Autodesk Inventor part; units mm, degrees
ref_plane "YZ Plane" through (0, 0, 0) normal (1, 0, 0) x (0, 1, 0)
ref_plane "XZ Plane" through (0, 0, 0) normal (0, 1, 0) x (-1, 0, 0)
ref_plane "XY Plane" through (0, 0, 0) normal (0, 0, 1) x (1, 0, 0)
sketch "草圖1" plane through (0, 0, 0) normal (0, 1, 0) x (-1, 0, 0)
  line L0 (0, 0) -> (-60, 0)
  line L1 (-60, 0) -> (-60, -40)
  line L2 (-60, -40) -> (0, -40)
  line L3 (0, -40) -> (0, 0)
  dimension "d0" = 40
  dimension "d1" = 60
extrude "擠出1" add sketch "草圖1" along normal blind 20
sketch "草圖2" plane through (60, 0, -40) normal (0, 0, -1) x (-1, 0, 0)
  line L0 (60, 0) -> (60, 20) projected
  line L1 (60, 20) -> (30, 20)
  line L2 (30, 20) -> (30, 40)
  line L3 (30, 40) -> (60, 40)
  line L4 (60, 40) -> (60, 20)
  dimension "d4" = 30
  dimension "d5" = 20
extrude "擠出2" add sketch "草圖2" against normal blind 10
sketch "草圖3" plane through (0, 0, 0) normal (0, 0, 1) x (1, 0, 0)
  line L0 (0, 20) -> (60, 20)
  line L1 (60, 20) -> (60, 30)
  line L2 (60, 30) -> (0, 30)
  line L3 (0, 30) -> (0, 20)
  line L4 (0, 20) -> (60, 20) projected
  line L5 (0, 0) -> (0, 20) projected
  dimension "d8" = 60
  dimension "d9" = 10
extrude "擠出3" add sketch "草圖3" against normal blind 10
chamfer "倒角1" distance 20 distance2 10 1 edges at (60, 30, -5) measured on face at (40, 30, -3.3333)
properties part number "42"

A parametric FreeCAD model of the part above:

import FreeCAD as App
import Part
import Sketcher
from FreeCAD import Vector


def edges_at(feature, points):
    """Names of the edges that pass closest to the given points."""
    edges = feature.Shape.Edges
    near = lambda p: min(range(len(edges)), key=lambda i: edges[i].distToShape(Part.Vertex(*p))[0])
    return sorted({f"Edge{near(p) + 1}" for p in points})

doc = App.newDocument("Part")
body = doc.addObject("PartDesign::Body", "Body")

# Sketch on XZ plane
sketch1 = body.newObject("Sketcher::SketchObject", "Sketch")
sketch1.AttachmentSupport = (doc.getObject("XZ_Plane"), [""])
sketch1.MapMode = "FlatFace"
sketch1.addGeometry(Part.LineSegment(Vector(0, -40, 0), Vector(0, 0, 0)), False)
sketch1.addGeometry(Part.LineSegment(Vector(0, 0, 0), Vector(60, 0, 0)), False)
sketch1.addGeometry(Part.LineSegment(Vector(60, 0, 0), Vector(60, -40, 0)), False)
sketch1.addGeometry(Part.LineSegment(Vector(60, -40, 0), Vector(0, -40, 0)), False)
sketch1.addConstraint(Sketcher.Constraint("Coincident", 0, 2, 1, 1))
sketch1.addConstraint(Sketcher.Constraint("Coincident", 1, 2, 2, 1))
sketch1.addConstraint(Sketcher.Constraint("Coincident", 2, 2, 3, 1))
sketch1.addConstraint(Sketcher.Constraint("Coincident", 3, 2, 0, 1))
sketch1.addConstraint(Sketcher.Constraint("Vertical", 0))
sketch1.addConstraint(Sketcher.Constraint("Horizontal", 1))
sketch1.addConstraint(Sketcher.Constraint("Vertical", 2))
sketch1.addConstraint(Sketcher.Constraint("Horizontal", 3))
sketch1.addConstraint(Sketcher.Constraint("Coincident", 0, 2, -1, 1))
sketch1.addConstraint(Sketcher.Constraint("DistanceX", 1, 1, 1, 2, 60.0))
sketch1.addConstraint(Sketcher.Constraint("DistanceY", 0, 1, 0, 2, 40.0))
pad1 = body.newObject("PartDesign::Pad", "Pad")
pad1.Profile = sketch1
pad1.Length = 20
pad1.Reversed = True

# Sketch on XY plane
sketch2 = body.newObject("Sketcher::SketchObject", "Sketch001")
sketch2.AttachmentSupport = (doc.getObject("XY_Plane"), [""])
sketch2.MapMode = "FlatFace"
sketch2.AttachmentOffset = App.Placement(Vector(0, 0, -40), App.Rotation())
sketch2.addGeometry(Part.LineSegment(Vector(30, 20, 0), Vector(0, 20, 0)), False)
sketch2.addGeometry(Part.LineSegment(Vector(0, 20, 0), Vector(0, 40, 0)), False)
sketch2.addGeometry(Part.LineSegment(Vector(0, 40, 0), Vector(30, 40, 0)), False)
sketch2.addGeometry(Part.LineSegment(Vector(30, 40, 0), Vector(30, 20, 0)), False)
sketch2.addConstraint(Sketcher.Constraint("Coincident", 0, 2, 1, 1))
sketch2.addConstraint(Sketcher.Constraint("Coincident", 1, 2, 2, 1))
sketch2.addConstraint(Sketcher.Constraint("Coincident", 2, 2, 3, 1))
sketch2.addConstraint(Sketcher.Constraint("Coincident", 3, 2, 0, 1))
sketch2.addConstraint(Sketcher.Constraint("Horizontal", 0))
sketch2.addConstraint(Sketcher.Constraint("Vertical", 1))
sketch2.addConstraint(Sketcher.Constraint("Horizontal", 2))
sketch2.addConstraint(Sketcher.Constraint("Vertical", 3))
sketch2.addConstraint(Sketcher.Constraint("PointOnObject", 0, 2, -2))
sketch2.addConstraint(Sketcher.Constraint("DistanceX", 0, 2, 0, 1, 30.0))
sketch2.addConstraint(Sketcher.Constraint("DistanceY", 1, 1, 1, 2, 20.0))
sketch2.addConstraint(Sketcher.Constraint("DistanceY", -1, 1, 0, 2, 20.0))
pad2 = body.newObject("PartDesign::Pad", "Pad001")
pad2.Profile = sketch2
pad2.Length = 10

# Sketch on XY plane
sketch3 = body.newObject("Sketcher::SketchObject", "Sketch002")
sketch3.AttachmentSupport = (doc.getObject("XY_Plane"), [""])
sketch3.MapMode = "FlatFace"
sketch3.addGeometry(Part.LineSegment(Vector(0, 30, 0), Vector(0, 20, 0)), False)
sketch3.addGeometry(Part.LineSegment(Vector(0, 20, 0), Vector(60, 20, 0)), False)
sketch3.addGeometry(Part.LineSegment(Vector(60, 20, 0), Vector(60, 30, 0)), False)
sketch3.addGeometry(Part.LineSegment(Vector(60, 30, 0), Vector(0, 30, 0)), False)
sketch3.addConstraint(Sketcher.Constraint("Coincident", 0, 2, 1, 1))
sketch3.addConstraint(Sketcher.Constraint("Coincident", 1, 2, 2, 1))
sketch3.addConstraint(Sketcher.Constraint("Coincident", 2, 2, 3, 1))
sketch3.addConstraint(Sketcher.Constraint("Coincident", 3, 2, 0, 1))
sketch3.addConstraint(Sketcher.Constraint("Vertical", 0))
sketch3.addConstraint(Sketcher.Constraint("Horizontal", 1))
sketch3.addConstraint(Sketcher.Constraint("Vertical", 2))
sketch3.addConstraint(Sketcher.Constraint("Horizontal", 3))
sketch3.addConstraint(Sketcher.Constraint("PointOnObject", 0, 2, -2))
sketch3.addConstraint(Sketcher.Constraint("DistanceX", 1, 1, 1, 2, 60.0))
sketch3.addConstraint(Sketcher.Constraint("DistanceY", 0, 2, 0, 1, 10.0))
sketch3.addConstraint(Sketcher.Constraint("DistanceY", -1, 1, 0, 2, 20.0))
pad3 = body.newObject("PartDesign::Pad", "Pad002")
pad3.Profile = sketch3
pad3.Length = 10
pad3.Reversed = True
doc.recompute()

chamfer = body.newObject("PartDesign::Chamfer", "Chamfer")
chamfer.Base = (pad3, edges_at(pad3, [(60, 30, -5)]))
chamfer.ChamferType = "Two distances"
chamfer.Size = 20
chamfer.Size2 = 10

doc.recompute()
